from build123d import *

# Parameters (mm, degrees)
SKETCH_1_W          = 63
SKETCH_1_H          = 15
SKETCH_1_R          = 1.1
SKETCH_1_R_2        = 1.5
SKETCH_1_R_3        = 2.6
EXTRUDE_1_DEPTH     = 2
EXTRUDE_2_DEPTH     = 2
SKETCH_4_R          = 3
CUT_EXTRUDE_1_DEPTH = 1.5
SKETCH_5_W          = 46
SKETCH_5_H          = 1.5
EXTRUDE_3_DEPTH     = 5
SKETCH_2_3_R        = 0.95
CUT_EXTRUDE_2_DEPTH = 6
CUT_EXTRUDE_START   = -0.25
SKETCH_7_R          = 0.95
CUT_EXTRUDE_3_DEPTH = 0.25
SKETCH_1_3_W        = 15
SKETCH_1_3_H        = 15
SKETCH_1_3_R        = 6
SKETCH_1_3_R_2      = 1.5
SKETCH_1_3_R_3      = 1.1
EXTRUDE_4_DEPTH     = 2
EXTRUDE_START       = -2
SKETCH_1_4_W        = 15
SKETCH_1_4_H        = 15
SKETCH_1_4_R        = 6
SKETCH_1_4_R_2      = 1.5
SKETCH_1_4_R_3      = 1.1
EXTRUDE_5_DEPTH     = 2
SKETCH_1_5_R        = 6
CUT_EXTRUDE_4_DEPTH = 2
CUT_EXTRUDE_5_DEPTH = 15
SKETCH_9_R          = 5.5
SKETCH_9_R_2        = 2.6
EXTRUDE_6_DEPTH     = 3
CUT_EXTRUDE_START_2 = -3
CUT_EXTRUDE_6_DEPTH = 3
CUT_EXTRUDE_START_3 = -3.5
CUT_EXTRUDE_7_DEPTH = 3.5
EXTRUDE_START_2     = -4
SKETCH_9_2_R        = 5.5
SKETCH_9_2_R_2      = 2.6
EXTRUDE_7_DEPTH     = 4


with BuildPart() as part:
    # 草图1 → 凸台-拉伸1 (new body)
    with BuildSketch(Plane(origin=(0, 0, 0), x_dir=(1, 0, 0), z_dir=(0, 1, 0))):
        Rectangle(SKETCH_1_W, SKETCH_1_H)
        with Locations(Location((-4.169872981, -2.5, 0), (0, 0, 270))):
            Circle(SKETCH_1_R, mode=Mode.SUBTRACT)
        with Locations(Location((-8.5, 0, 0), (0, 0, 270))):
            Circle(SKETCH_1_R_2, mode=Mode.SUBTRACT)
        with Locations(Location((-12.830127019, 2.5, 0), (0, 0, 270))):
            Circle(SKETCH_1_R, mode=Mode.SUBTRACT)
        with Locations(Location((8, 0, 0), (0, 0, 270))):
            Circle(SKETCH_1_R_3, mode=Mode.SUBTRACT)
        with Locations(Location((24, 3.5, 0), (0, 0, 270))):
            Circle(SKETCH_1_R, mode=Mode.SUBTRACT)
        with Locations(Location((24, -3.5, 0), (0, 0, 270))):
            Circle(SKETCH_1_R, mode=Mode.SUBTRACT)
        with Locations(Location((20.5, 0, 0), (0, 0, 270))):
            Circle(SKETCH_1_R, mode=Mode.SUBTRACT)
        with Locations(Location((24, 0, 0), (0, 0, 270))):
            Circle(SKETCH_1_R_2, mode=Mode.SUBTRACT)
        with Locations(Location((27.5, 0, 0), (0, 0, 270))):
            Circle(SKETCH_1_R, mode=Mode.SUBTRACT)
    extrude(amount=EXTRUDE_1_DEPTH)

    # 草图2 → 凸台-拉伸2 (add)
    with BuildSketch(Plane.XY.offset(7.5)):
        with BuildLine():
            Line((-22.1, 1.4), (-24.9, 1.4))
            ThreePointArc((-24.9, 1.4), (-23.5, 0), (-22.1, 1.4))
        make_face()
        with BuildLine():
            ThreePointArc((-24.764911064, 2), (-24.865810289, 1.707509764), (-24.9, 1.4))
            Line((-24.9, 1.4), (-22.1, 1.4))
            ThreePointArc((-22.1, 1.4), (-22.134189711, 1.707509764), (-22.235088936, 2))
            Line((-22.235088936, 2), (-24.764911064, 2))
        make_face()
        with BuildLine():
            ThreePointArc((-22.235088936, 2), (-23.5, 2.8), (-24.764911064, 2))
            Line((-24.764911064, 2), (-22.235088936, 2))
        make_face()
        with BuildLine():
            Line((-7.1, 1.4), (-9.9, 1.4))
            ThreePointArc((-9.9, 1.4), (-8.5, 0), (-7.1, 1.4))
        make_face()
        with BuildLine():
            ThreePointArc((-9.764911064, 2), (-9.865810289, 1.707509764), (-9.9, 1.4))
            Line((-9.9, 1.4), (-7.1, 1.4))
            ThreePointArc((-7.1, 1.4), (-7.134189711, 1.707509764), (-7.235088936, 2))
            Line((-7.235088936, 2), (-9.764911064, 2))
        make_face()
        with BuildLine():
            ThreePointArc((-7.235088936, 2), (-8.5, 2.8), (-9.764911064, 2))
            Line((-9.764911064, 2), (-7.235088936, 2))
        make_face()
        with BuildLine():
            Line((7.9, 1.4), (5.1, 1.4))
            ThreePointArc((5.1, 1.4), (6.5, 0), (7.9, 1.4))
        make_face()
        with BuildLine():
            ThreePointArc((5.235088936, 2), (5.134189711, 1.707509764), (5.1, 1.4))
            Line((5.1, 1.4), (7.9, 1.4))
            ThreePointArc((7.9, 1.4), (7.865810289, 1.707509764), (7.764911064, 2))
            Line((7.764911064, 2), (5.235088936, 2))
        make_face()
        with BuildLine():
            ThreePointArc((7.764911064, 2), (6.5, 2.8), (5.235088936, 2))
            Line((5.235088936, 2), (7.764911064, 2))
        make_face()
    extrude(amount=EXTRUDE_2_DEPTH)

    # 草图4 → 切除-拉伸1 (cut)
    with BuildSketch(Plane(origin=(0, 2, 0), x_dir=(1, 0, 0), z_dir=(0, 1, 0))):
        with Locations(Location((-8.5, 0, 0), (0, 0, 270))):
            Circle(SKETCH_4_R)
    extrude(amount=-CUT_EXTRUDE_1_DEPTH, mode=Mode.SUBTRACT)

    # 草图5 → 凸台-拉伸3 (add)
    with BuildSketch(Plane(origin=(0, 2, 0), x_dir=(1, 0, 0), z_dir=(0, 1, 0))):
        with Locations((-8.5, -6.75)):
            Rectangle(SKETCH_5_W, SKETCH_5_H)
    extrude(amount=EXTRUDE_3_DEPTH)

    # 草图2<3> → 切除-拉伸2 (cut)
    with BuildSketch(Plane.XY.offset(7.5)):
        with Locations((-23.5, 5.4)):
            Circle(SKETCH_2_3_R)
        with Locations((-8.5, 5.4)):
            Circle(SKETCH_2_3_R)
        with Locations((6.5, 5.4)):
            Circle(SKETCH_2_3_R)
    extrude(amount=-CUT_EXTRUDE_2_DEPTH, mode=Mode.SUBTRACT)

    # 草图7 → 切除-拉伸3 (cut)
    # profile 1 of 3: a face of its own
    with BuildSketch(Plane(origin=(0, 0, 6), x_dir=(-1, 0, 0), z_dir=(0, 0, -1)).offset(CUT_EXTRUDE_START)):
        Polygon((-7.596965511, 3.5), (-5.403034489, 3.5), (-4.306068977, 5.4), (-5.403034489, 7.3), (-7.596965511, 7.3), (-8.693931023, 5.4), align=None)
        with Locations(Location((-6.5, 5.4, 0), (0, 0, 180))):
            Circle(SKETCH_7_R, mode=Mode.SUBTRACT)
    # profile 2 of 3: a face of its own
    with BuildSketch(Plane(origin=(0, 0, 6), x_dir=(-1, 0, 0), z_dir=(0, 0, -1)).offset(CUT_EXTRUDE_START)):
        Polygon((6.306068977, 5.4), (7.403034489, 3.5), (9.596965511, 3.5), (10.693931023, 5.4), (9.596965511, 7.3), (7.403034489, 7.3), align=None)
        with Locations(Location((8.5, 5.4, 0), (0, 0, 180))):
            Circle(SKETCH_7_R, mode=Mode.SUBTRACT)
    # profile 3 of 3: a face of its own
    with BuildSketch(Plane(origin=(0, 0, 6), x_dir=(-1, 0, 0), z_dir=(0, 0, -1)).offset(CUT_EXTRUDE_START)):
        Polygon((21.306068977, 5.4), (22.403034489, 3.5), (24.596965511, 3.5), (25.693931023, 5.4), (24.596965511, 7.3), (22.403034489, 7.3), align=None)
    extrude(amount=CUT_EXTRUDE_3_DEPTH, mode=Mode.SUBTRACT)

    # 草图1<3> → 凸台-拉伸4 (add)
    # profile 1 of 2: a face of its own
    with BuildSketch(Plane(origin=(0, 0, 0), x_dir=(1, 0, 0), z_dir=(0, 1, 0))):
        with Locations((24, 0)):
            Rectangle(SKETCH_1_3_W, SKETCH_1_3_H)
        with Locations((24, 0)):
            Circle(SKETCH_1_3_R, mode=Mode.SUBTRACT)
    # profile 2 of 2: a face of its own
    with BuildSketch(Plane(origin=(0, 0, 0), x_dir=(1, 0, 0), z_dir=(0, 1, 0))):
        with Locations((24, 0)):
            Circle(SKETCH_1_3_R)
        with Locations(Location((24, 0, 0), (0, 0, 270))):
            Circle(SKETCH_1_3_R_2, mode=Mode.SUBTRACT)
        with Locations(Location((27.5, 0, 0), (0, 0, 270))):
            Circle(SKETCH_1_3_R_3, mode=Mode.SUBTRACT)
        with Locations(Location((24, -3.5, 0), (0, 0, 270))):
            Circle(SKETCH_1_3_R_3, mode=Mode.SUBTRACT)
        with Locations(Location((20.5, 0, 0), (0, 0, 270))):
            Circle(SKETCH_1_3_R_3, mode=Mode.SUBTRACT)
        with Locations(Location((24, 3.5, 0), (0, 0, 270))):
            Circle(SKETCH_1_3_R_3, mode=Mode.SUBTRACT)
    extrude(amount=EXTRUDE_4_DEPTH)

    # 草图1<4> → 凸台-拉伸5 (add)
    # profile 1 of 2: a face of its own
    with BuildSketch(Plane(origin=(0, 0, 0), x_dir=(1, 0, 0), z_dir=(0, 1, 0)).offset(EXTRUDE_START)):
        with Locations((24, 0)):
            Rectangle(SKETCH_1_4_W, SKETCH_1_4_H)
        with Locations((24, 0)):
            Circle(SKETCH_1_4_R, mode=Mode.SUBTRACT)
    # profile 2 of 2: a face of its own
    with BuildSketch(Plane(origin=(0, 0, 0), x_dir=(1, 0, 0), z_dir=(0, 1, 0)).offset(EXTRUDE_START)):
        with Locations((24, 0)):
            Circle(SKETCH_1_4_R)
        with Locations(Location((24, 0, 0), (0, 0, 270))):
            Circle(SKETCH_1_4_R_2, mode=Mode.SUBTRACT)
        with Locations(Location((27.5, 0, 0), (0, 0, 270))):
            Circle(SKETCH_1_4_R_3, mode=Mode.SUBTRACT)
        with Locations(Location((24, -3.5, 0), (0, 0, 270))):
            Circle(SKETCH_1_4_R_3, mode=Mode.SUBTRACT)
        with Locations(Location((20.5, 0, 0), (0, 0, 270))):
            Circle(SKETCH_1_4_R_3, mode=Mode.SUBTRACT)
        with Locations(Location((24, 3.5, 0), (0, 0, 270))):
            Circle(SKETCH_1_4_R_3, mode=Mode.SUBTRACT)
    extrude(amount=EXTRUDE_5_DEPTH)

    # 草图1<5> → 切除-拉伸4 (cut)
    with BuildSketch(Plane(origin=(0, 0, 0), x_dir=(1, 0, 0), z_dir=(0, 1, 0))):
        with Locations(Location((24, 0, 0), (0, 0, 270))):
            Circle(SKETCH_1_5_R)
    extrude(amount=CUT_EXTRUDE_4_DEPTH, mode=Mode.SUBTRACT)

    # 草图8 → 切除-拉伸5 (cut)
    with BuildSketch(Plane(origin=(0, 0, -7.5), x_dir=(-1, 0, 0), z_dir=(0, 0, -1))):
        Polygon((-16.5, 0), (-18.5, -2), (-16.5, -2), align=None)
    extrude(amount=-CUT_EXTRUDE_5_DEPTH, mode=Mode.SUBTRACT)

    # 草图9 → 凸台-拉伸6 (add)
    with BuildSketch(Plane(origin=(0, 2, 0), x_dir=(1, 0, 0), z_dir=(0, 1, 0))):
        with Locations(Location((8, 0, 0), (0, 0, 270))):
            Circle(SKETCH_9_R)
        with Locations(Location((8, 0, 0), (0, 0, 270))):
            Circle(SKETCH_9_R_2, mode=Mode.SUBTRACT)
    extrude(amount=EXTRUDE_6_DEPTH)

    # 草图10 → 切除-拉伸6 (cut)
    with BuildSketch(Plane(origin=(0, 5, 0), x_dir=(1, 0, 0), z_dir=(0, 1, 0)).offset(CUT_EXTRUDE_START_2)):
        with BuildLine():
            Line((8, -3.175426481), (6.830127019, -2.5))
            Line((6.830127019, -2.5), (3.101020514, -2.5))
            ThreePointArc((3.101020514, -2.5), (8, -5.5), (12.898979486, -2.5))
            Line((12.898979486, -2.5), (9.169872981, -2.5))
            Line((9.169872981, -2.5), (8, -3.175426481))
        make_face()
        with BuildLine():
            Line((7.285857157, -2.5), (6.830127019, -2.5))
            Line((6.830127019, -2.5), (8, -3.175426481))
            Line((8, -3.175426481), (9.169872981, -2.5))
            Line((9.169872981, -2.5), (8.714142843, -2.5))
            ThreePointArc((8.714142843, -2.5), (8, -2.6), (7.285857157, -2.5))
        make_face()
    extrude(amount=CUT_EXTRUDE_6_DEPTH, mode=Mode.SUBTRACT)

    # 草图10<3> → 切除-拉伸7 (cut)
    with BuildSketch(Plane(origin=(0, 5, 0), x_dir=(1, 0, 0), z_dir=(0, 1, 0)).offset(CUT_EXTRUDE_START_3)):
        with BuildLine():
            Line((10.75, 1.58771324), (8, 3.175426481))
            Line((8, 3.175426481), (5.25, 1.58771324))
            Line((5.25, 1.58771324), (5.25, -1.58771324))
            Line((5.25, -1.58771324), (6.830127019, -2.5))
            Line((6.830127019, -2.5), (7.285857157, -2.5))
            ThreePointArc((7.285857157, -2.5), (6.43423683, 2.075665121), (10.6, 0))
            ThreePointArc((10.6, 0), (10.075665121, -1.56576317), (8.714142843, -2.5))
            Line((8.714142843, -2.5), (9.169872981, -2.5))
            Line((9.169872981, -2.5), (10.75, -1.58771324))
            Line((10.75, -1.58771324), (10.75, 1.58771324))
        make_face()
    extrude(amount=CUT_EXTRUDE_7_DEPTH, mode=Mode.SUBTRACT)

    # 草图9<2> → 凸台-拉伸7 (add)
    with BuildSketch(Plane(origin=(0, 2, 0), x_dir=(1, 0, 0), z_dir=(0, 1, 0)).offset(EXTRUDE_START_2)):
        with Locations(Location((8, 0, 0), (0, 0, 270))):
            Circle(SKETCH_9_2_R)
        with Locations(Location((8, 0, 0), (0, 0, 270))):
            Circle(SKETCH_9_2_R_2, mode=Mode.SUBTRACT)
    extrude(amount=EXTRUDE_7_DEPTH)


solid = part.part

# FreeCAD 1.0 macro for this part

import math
import FreeCAD as App
import Part
import Sketcher

V = App.Vector
Q = App.Units.Quantity

doc = App.newDocument("Part")
body = doc.addObject("PartDesign::Body", "Body")

sketch1 = body.newObject("Sketcher::SketchObject", "Sketch")
sketch1.AttachmentSupport = (doc.getObject("XZ_Plane"), [""])
sketch1.MapMode = "FlatFace"
sketch1.addGeometry(Part.LineSegment(V(-31.5, -7.5, 0), V(-31.5, 7.5, 0)), False)
sketch1.addGeometry(Part.LineSegment(V(-31.5, 7.5, 0), V(31.5, 7.5, 0)), False)
sketch1.addGeometry(Part.LineSegment(V(31.5, 7.5, 0), V(31.5, -7.5, 0)), False)
sketch1.addGeometry(Part.LineSegment(V(31.5, -7.5, 0), V(-31.5, -7.5, 0)), False)
sketch1.addGeometry(Part.Circle(V(-4.2, 2.5, 0), V(0, 0, 1), 1.1), False)
sketch1.addGeometry(Part.Circle(V(24, 3.5, 0), V(0, 0, 1), 1.1), False)
sketch1.addGeometry(Part.Circle(V(-8.5, 0, 0), V(0, 0, 1), 1.5), False)
sketch1.addGeometry(Part.Circle(V(-12.8, -2.5, 0), V(0, 0, 1), 1.1), False)
sketch1.addGeometry(Part.Circle(V(8, 0, 0), V(0, 0, 1), 2.6), False)
sketch1.addGeometry(Part.Circle(V(20.5, 0, 0), V(0, 0, 1), 1.1), False)
sketch1.addGeometry(Part.Circle(V(24, 0, 0), V(0, 0, 1), 1.5), False)
sketch1.addGeometry(Part.Circle(V(27.5, 0, 0), V(0, 0, 1), 1.1), False)
sketch1.addGeometry(Part.Circle(V(24, -3.5, 0), V(0, 0, 1), 1.1), False)
sketch1.addConstraint(Sketcher.Constraint("Coincident", 0, 2, 1, 1))
sketch1.addConstraint(Sketcher.Constraint("Coincident", 1, 2, 2, 1))
sketch1.addConstraint(Sketcher.Constraint("Coincident", 2, 2, 3, 1))
sketch1.addConstraint(Sketcher.Constraint("Coincident", 3, 2, 0, 1))
sketch1.addConstraint(Sketcher.Constraint("Vertical", 0))
sketch1.addConstraint(Sketcher.Constraint("Horizontal", 1))
sketch1.addConstraint(Sketcher.Constraint("Vertical", 2))
sketch1.addConstraint(Sketcher.Constraint("Horizontal", 3))
sketch1.addConstraint(Sketcher.Constraint("Equal", 4, 5))
sketch1.addConstraint(Sketcher.Constraint("Equal", 5, 7))
sketch1.addConstraint(Sketcher.Constraint("Equal", 7, 9))
sketch1.addConstraint(Sketcher.Constraint("Equal", 6, 10))
sketch1.addConstraint(Sketcher.Constraint("Equal", 9, 11))
sketch1.addConstraint(Sketcher.Constraint("Equal", 11, 12))
sketch1.addConstraint(Sketcher.Constraint("Symmetric", 0, 2, 2, 2, -1, 1))
sketch1.addConstraint(Sketcher.Constraint("Symmetric", 5, 3, 12, 3, -1))
sketch1.addConstraint(Sketcher.Constraint("PointOnObject", 6, 3, -1))
sketch1.addConstraint(Sketcher.Constraint("PointOnObject", 8, 3, -1))
sketch1.addConstraint(Sketcher.Constraint("PointOnObject", 9, 3, -1))
sketch1.addConstraint(Sketcher.Constraint("PointOnObject", 10, 3, -1))
sketch1.addConstraint(Sketcher.Constraint("PointOnObject", 11, 3, -1))
sketch1.addConstraint(Sketcher.Constraint("Vertical", 5, 3, 10, 3))
sketch1.addConstraint(Sketcher.Constraint("Diameter", 6, 3.0))
sketch1.addConstraint(Sketcher.Constraint("Diameter", 4, 2.2))
sketch1.addConstraint(Sketcher.Constraint("Diameter", 8, 5.2))
sketch1.addConstraint(Sketcher.Constraint("DistanceX", 1, 1, 1, 2, 63.0))
sketch1.addConstraint(Sketcher.Constraint("DistanceY", 0, 1, 0, 2, 15.0))
sketch1.addConstraint(Sketcher.Constraint("DistanceX", -1, 1, 5, 3, 24.0))
sketch1.addConstraint(Sketcher.Constraint("DistanceX", -1, 1, 8, 3, 8.0))
sketch1.addConstraint(Sketcher.Constraint("DistanceY", 4, 3, 5, 3, 1.0))
sketch1.addConstraint(Sketcher.Constraint("DistanceY", 7, 3, 4, 3, 5.0))
sketch1.addConstraint(Sketcher.Constraint("DistanceX", 6, 3, 9, 3, 29.0))
sketch1.addConstraint(Sketcher.Constraint("DistanceX", 9, 3, 11, 3, 7.0))
sketch1.addConstraint(Sketcher.Constraint("DistanceY", 12, 3, 5, 3, 7.0))
sketch1.addConstraint(Sketcher.Constraint("DistanceX", 0, 2, 6, 3, 23.0))
sketch1.addConstraint(Sketcher.Constraint("DistanceX", 4, 3, -1, 1, 4.169873))
sketch1.addConstraint(Sketcher.Constraint("DistanceX", 7, 3, -1, 1, 12.830127))
pad1 = body.newObject("PartDesign::Pad", "Pad")
pad1.Profile = sketch1
pad1.Length = 2
pad1.Reversed = True

sketch2 = body.newObject("Sketcher::SketchObject", "Sketch001")
sketch2.AttachmentSupport = (doc.getObject("XY_Plane"), [""])
sketch2.MapMode = "FlatFace"
sketch2.AttachmentOffset = App.Placement(V(0, 0, 7.5), App.Rotation())
sketch2.addGeometry(Part.ArcOfCircle(Part.Circle(V(-23.5, 1.4, 0), V(0, 0, 1), 1.4), math.radians(180), math.radians(360)), False)
sketch2.addGeometry(Part.ArcOfCircle(Part.Circle(V(-23.5, 1.4, 0), V(0, 0, 1), 1.4), math.radians(0), math.radians(25)), False)
sketch2.addGeometry(Part.ArcOfCircle(Part.Circle(V(-23.5, 1.4, 0), V(0, 0, 1), 1.4), math.radians(25), math.radians(155)), False)
sketch2.addGeometry(Part.ArcOfCircle(Part.Circle(V(-23.5, 1.4, 0), V(0, 0, 1), 1.4), math.radians(155), math.radians(180)), False)
sketch2.addGeometry(Part.ArcOfCircle(Part.Circle(V(-8.5, 1.4, 0), V(0, 0, 1), 1.4), math.radians(180), math.radians(360)), False)
sketch2.addGeometry(Part.ArcOfCircle(Part.Circle(V(-8.5, 1.4, 0), V(0, 0, 1), 1.4), math.radians(0), math.radians(25)), False)
sketch2.addGeometry(Part.ArcOfCircle(Part.Circle(V(-8.5, 1.4, 0), V(0, 0, 1), 1.4), math.radians(25), math.radians(155)), False)
sketch2.addGeometry(Part.ArcOfCircle(Part.Circle(V(-8.5, 1.4, 0), V(0, 0, 1), 1.4), math.radians(155), math.radians(180)), False)
sketch2.addGeometry(Part.ArcOfCircle(Part.Circle(V(6.5, 1.4, 0), V(0, 0, 1), 1.4), math.radians(180), math.radians(360)), False)
sketch2.addGeometry(Part.ArcOfCircle(Part.Circle(V(6.5, 1.4, 0), V(0, 0, 1), 1.4), math.radians(0), math.radians(25)), False)
sketch2.addGeometry(Part.ArcOfCircle(Part.Circle(V(6.5, 1.4, 0), V(0, 0, 1), 1.4), math.radians(25), math.radians(155)), False)
sketch2.addGeometry(Part.ArcOfCircle(Part.Circle(V(6.5, 1.4, 0), V(0, 0, 1), 1.4), math.radians(155), math.radians(180)), False)
sketch2.addConstraint(Sketcher.Constraint("Tangent", 0, 2, 1, 1))
sketch2.addConstraint(Sketcher.Constraint("Tangent", 1, 2, 2, 1))
sketch2.addConstraint(Sketcher.Constraint("Tangent", 2, 2, 3, 1))
sketch2.addConstraint(Sketcher.Constraint("Tangent", 3, 2, 0, 1))
sketch2.addConstraint(Sketcher.Constraint("Tangent", 4, 2, 5, 1))
sketch2.addConstraint(Sketcher.Constraint("Tangent", 5, 2, 6, 1))
sketch2.addConstraint(Sketcher.Constraint("Tangent", 6, 2, 7, 1))
sketch2.addConstraint(Sketcher.Constraint("Tangent", 7, 2, 4, 1))
sketch2.addConstraint(Sketcher.Constraint("Tangent", 8, 2, 9, 1))
sketch2.addConstraint(Sketcher.Constraint("Tangent", 9, 2, 10, 1))
sketch2.addConstraint(Sketcher.Constraint("Tangent", 10, 2, 11, 1))
sketch2.addConstraint(Sketcher.Constraint("Tangent", 11, 2, 8, 1))
sketch2.addConstraint(Sketcher.Constraint("Equal", 0, 1))
sketch2.addConstraint(Sketcher.Constraint("Equal", 3, 4))
sketch2.addConstraint(Sketcher.Constraint("Equal", 4, 5))
sketch2.addConstraint(Sketcher.Constraint("Equal", 7, 8))
sketch2.addConstraint(Sketcher.Constraint("Equal", 8, 9))
sketch2.addConstraint(Sketcher.Constraint("Horizontal", 3, 3, 4, 3))
sketch2.addConstraint(Sketcher.Constraint("Horizontal", 7, 3, 8, 3))
sketch2.addConstraint(Sketcher.Constraint("Horizontal", 11, 3, 0, 2))
sketch2.addConstraint(Sketcher.Constraint("Horizontal", 1, 2, 2, 2))
sketch2.addConstraint(Sketcher.Constraint("Horizontal", 0, 2, 3, 2))
sketch2.addConstraint(Sketcher.Constraint("Horizontal", 3, 2, 4, 2))
sketch2.addConstraint(Sketcher.Constraint("Horizontal", 2, 2, 5, 2))
sketch2.addConstraint(Sketcher.Constraint("Horizontal", 5, 2, 6, 2))
sketch2.addConstraint(Sketcher.Constraint("Horizontal", 4, 2, 7, 2))
sketch2.addConstraint(Sketcher.Constraint("Horizontal", 7, 2, 8, 2))
sketch2.addConstraint(Sketcher.Constraint("Horizontal", 6, 2, 9, 2))
sketch2.addConstraint(Sketcher.Constraint("Horizontal", 9, 2, 10, 2))
sketch2.addConstraint(Sketcher.Constraint("Horizontal", 8, 2, 11, 2))
sketch2.addConstraint(Sketcher.Constraint("Radius", 0, 1.4))
sketch2.addConstraint(Sketcher.Constraint("DistanceY", -1, 1, 1, 2, 2.0))
sketch2.addConstraint(Sketcher.Constraint("DistanceX", 1, 3, 4, 3, 15.0))
sketch2.addConstraint(Sketcher.Constraint("DistanceX", 5, 3, 8, 3, 15.0))
sketch2.addConstraint(Sketcher.Constraint("DistanceX", 0, 3, -1, 1, 23.5))
sketch2.addConstraint(Sketcher.Constraint("DistanceY", -1, 1, 0, 3, 1.4))
pad2 = body.newObject("PartDesign::Pad", "Pad001")
pad2.Profile = sketch2
pad2.Length = 2

sketch3 = body.newObject("Sketcher::SketchObject", "Sketch002")
sketch3.AttachmentSupport = (doc.getObject("XZ_Plane"), [""])
sketch3.MapMode = "FlatFace"
sketch3.AttachmentOffset = App.Placement(V(0, 0, -2), App.Rotation())
sketch3.addGeometry(Part.Circle(V(-8.5, 0, 0), V(0, 0, 1), 3), False)
sketch3.addConstraint(Sketcher.Constraint("PointOnObject", 0, 3, -1))
sketch3.addConstraint(Sketcher.Constraint("Diameter", 0, 6.0))
sketch3.addConstraint(Sketcher.Constraint("DistanceX", 0, 3, -1, 1, 8.5))
pocket1 = body.newObject("PartDesign::Pocket", "Pocket")
pocket1.Profile = sketch3
pocket1.Length = 1.5
pocket1.Reversed = True

sketch4 = body.newObject("Sketcher::SketchObject", "Sketch003")
sketch4.AttachmentSupport = (doc.getObject("XZ_Plane"), [""])
sketch4.MapMode = "FlatFace"
sketch4.AttachmentOffset = App.Placement(V(0, 0, -2), App.Rotation())
sketch4.addGeometry(Part.LineSegment(V(-31.5, 6, 0), V(-31.5, 7.5, 0)), False)
sketch4.addGeometry(Part.LineSegment(V(-31.5, 7.5, 0), V(14.5, 7.5, 0)), False)
sketch4.addGeometry(Part.LineSegment(V(14.5, 7.5, 0), V(14.5, 6, 0)), False)
sketch4.addGeometry(Part.LineSegment(V(14.5, 6, 0), V(-31.5, 6, 0)), False)
sketch4.addConstraint(Sketcher.Constraint("Coincident", 0, 2, 1, 1))
sketch4.addConstraint(Sketcher.Constraint("Coincident", 1, 2, 2, 1))
sketch4.addConstraint(Sketcher.Constraint("Coincident", 2, 2, 3, 1))
sketch4.addConstraint(Sketcher.Constraint("Coincident", 3, 2, 0, 1))
sketch4.addConstraint(Sketcher.Constraint("Vertical", 0))
sketch4.addConstraint(Sketcher.Constraint("Horizontal", 1))
sketch4.addConstraint(Sketcher.Constraint("Vertical", 2))
sketch4.addConstraint(Sketcher.Constraint("Horizontal", 3))
sketch4.addConstraint(Sketcher.Constraint("DistanceX", 1, 1, 1, 2, 46.0))
sketch4.addConstraint(Sketcher.Constraint("DistanceY", 0, 1, 0, 2, 1.5))
sketch4.addConstraint(Sketcher.Constraint("DistanceY", -1, 1, 2, 2, 6.0))
sketch4.addConstraint(Sketcher.Constraint("DistanceX", 0, 2, -1, 1, 31.5))
pad3 = body.newObject("PartDesign::Pad", "Pad002")
pad3.Profile = sketch4
pad3.Length = 5
pad3.Reversed = True

sketch5 = body.newObject("Sketcher::SketchObject", "Sketch004")
sketch5.AttachmentSupport = (doc.getObject("XY_Plane"), [""])
sketch5.MapMode = "FlatFace"
sketch5.AttachmentOffset = App.Placement(V(0, 0, 7.5), App.Rotation())
sketch5.addGeometry(Part.Circle(V(-23.5, 5.4, 0), V(0, 0, 1), 0.9), False)
sketch5.addGeometry(Part.Circle(V(-8.5, 5.4, 0), V(0, 0, 1), 0.9), False)
sketch5.addGeometry(Part.Circle(V(6.5, 5.4, 0), V(0, 0, 1), 0.9), False)
sketch5.addConstraint(Sketcher.Constraint("Equal", 0, 1))
sketch5.addConstraint(Sketcher.Constraint("Equal", 1, 2))
sketch5.addConstraint(Sketcher.Constraint("Horizontal", 0, 3, 1, 3))
sketch5.addConstraint(Sketcher.Constraint("Horizontal", 1, 3, 2, 3))
sketch5.addConstraint(Sketcher.Constraint("Diameter", 0, 1.9))
sketch5.addConstraint(Sketcher.Constraint("DistanceX", 0, 3, 1, 3, 15.0))
sketch5.addConstraint(Sketcher.Constraint("DistanceX", 1, 3, 2, 3, 15.0))
sketch5.addConstraint(Sketcher.Constraint("DistanceX", 0, 3, -1, 1, 23.5))
sketch5.addConstraint(Sketcher.Constraint("DistanceY", -1, 1, 0, 3, 5.4))
pocket2 = body.newObject("PartDesign::Pocket", "Pocket001")
pocket2.Profile = sketch5
pocket2.Length = 6

sketch6 = body.newObject("Sketcher::SketchObject", "Sketch005")
sketch6.AttachmentSupport = (doc.getObject("XY_Plane"), [""])
sketch6.MapMode = "FlatFace"
sketch6.AttachmentOffset = App.Placement(V(0, 0, 6.25), App.Rotation())
sketch6.addGeometry(Part.LineSegment(V(7.6, 3.5, 0), V(5.4, 3.5, 0)), False)
sketch6.addGeometry(Part.LineSegment(V(5.4, 3.5, 0), V(4.3, 5.4, 0)), False)
sketch6.addGeometry(Part.LineSegment(V(4.3, 5.4, 0), V(5.4, 7.3, 0)), False)
sketch6.addGeometry(Part.LineSegment(V(5.4, 7.3, 0), V(7.6, 7.3, 0)), False)
sketch6.addGeometry(Part.LineSegment(V(7.6, 7.3, 0), V(8.7, 5.4, 0)), False)
sketch6.addGeometry(Part.LineSegment(V(8.7, 5.4, 0), V(7.6, 3.5, 0)), False)
sketch6.addGeometry(Part.Circle(V(6.5, 5.4, 0), V(0, 0, 1), 0.9), False)
sketch6.addGeometry(Part.LineSegment(V(-6.3, 5.4, 0), V(-7.4, 3.5, 0)), False)
sketch6.addGeometry(Part.LineSegment(V(-7.4, 3.5, 0), V(-9.6, 3.5, 0)), False)
sketch6.addGeometry(Part.LineSegment(V(-9.6, 3.5, 0), V(-10.7, 5.4, 0)), False)
sketch6.addGeometry(Part.LineSegment(V(-10.7, 5.4, 0), V(-9.6, 7.3, 0)), False)
sketch6.addGeometry(Part.LineSegment(V(-9.6, 7.3, 0), V(-7.4, 7.3, 0)), False)
sketch6.addGeometry(Part.LineSegment(V(-7.4, 7.3, 0), V(-6.3, 5.4, 0)), False)
sketch6.addGeometry(Part.Circle(V(-8.5, 5.4, 0), V(0, 0, 1), 0.9), False)
sketch6.addGeometry(Part.LineSegment(V(-21.3, 5.4, 0), V(-22.4, 3.5, 0)), False)
sketch6.addGeometry(Part.LineSegment(V(-22.4, 3.5, 0), V(-24.6, 3.5, 0)), False)
sketch6.addGeometry(Part.LineSegment(V(-24.6, 3.5, 0), V(-25.7, 5.4, 0)), False)
sketch6.addGeometry(Part.LineSegment(V(-25.7, 5.4, 0), V(-24.6, 7.3, 0)), False)
sketch6.addGeometry(Part.LineSegment(V(-24.6, 7.3, 0), V(-22.4, 7.3, 0)), False)
sketch6.addGeometry(Part.LineSegment(V(-22.4, 7.3, 0), V(-21.3, 5.4, 0)), False)
sketch6.addConstraint(Sketcher.Constraint("Coincident", 0, 2, 1, 1))
sketch6.addConstraint(Sketcher.Constraint("Coincident", 1, 2, 2, 1))
sketch6.addConstraint(Sketcher.Constraint("Coincident", 2, 2, 3, 1))
sketch6.addConstraint(Sketcher.Constraint("Coincident", 3, 2, 4, 1))
sketch6.addConstraint(Sketcher.Constraint("Coincident", 4, 2, 5, 1))
sketch6.addConstraint(Sketcher.Constraint("Coincident", 5, 2, 0, 1))
sketch6.addConstraint(Sketcher.Constraint("Coincident", 7, 2, 8, 1))
sketch6.addConstraint(Sketcher.Constraint("Coincident", 8, 2, 9, 1))
sketch6.addConstraint(Sketcher.Constraint("Coincident", 9, 2, 10, 1))
sketch6.addConstraint(Sketcher.Constraint("Coincident", 10, 2, 11, 1))
sketch6.addConstraint(Sketcher.Constraint("Coincident", 11, 2, 12, 1))
sketch6.addConstraint(Sketcher.Constraint("Coincident", 12, 2, 7, 1))
sketch6.addConstraint(Sketcher.Constraint("Coincident", 14, 2, 15, 1))
sketch6.addConstraint(Sketcher.Constraint("Coincident", 15, 2, 16, 1))
sketch6.addConstraint(Sketcher.Constraint("Coincident", 16, 2, 17, 1))
sketch6.addConstraint(Sketcher.Constraint("Coincident", 17, 2, 18, 1))
sketch6.addConstraint(Sketcher.Constraint("Coincident", 18, 2, 19, 1))
sketch6.addConstraint(Sketcher.Constraint("Coincident", 19, 2, 14, 1))
sketch6.addConstraint(Sketcher.Constraint("Horizontal", 0))
sketch6.addConstraint(Sketcher.Constraint("Horizontal", 3))
sketch6.addConstraint(Sketcher.Constraint("Horizontal", 8))
sketch6.addConstraint(Sketcher.Constraint("Horizontal", 11))
sketch6.addConstraint(Sketcher.Constraint("Horizontal", 15))
sketch6.addConstraint(Sketcher.Constraint("Horizontal", 18))
sketch6.addConstraint(Sketcher.Constraint("Equal", 6, 13))
sketch6.addConstraint(Sketcher.Constraint("Parallel", 1, 4))
sketch6.addConstraint(Sketcher.Constraint("Parallel", 2, 5))
sketch6.addConstraint(Sketcher.Constraint("Parallel", 5, 7))
sketch6.addConstraint(Sketcher.Constraint("Parallel", 4, 9))
sketch6.addConstraint(Sketcher.Constraint("Parallel", 7, 10))
sketch6.addConstraint(Sketcher.Constraint("Parallel", 9, 12))
sketch6.addConstraint(Sketcher.Constraint("Parallel", 10, 14))
sketch6.addConstraint(Sketcher.Constraint("Parallel", 12, 16))
sketch6.addConstraint(Sketcher.Constraint("Parallel", 14, 17))
sketch6.addConstraint(Sketcher.Constraint("Parallel", 16, 19))
sketch6.addConstraint(Sketcher.Constraint("Horizontal", 6, 3, 13, 3))
sketch6.addConstraint(Sketcher.Constraint("Horizontal", 13, 3, 1, 2))
sketch6.addConstraint(Sketcher.Constraint("Horizontal", 1, 2, 4, 2))
sketch6.addConstraint(Sketcher.Constraint("Horizontal", 5, 2, 7, 2))
sketch6.addConstraint(Sketcher.Constraint("Horizontal", 4, 2, 9, 2))
sketch6.addConstraint(Sketcher.Constraint("Horizontal", 3, 2, 10, 2))
sketch6.addConstraint(Sketcher.Constraint("Horizontal", 9, 2, 12, 2))
sketch6.addConstraint(Sketcher.Constraint("Horizontal", 8, 2, 14, 2))
sketch6.addConstraint(Sketcher.Constraint("Horizontal", 12, 2, 16, 2))
sketch6.addConstraint(Sketcher.Constraint("Horizontal", 11, 2, 17, 2))
sketch6.addConstraint(Sketcher.Constraint("Horizontal", 16, 2, 19, 2))
sketch6.addConstraint(Sketcher.Constraint("Vertical", 0, 2, 2, 2))
sketch6.addConstraint(Sketcher.Constraint("Vertical", 3, 2, 5, 2))
sketch6.addConstraint(Sketcher.Constraint("Equal", 3, 8))
sketch6.addConstraint(Sketcher.Constraint("Equal", 11, 15))
sketch6.addConstraint(Sketcher.Constraint("Diameter", 6, 1.9))
sketch6.addConstraint(Sketcher.Constraint("Angle", 1, Q("120 deg")))
sketch6.addConstraint(Sketcher.Constraint("DistanceX", 13, 3, 6, 3, 15.0))
sketch6.addConstraint(Sketcher.Constraint("DistanceX", 8, 2, 0, 2, 15.0))
sketch6.addConstraint(Sketcher.Constraint("DistanceX", 14, 2, 7, 2, 15.0))
sketch6.addConstraint(Sketcher.Constraint("DistanceX", -1, 1, 6, 3, 6.5))
sketch6.addConstraint(Sketcher.Constraint("DistanceY", -1, 1, 6, 3, 5.4))
sketch6.addConstraint(Sketcher.Constraint("DistanceY", -1, 1, 0, 2, 3.5))
sketch6.addConstraint(Sketcher.Constraint("DistanceX", 0, 2, 0, 1, 2.193931))
sketch6.addConstraint(Sketcher.Constraint("DistanceX", -1, 1, 1, 2, 4.306069))
pocket3 = body.newObject("PartDesign::Pocket", "Pocket002")
pocket3.Profile = sketch6
pocket3.Length = 0.25

sketch7 = body.newObject("Sketcher::SketchObject", "Sketch006")
sketch7.AttachmentSupport = (doc.getObject("XZ_Plane"), [""])
sketch7.MapMode = "FlatFace"
sketch7.addGeometry(Part.LineSegment(V(16.5, -7.5, 0), V(16.5, 7.5, 0)), False)
sketch7.addGeometry(Part.LineSegment(V(16.5, 7.5, 0), V(31.5, 7.5, 0)), False)
sketch7.addGeometry(Part.LineSegment(V(31.5, 7.5, 0), V(31.5, -7.5, 0)), False)
sketch7.addGeometry(Part.LineSegment(V(31.5, -7.5, 0), V(16.5, -7.5, 0)), False)
sketch7.addGeometry(Part.Circle(V(24, -3.5, 0), V(0, 0, 1), 1.1), False)
sketch7.addGeometry(Part.Circle(V(24, 3.5, 0), V(0, 0, 1), 1.1), False)
sketch7.addGeometry(Part.Circle(V(20.5, 0, 0), V(0, 0, 1), 1.1), False)
sketch7.addGeometry(Part.Circle(V(24, 0, 0), V(0, 0, 1), 1.5), False)
sketch7.addGeometry(Part.Circle(V(27.5, 0, 0), V(0, 0, 1), 1.1), False)
sketch7.addConstraint(Sketcher.Constraint("Coincident", 0, 2, 1, 1))
sketch7.addConstraint(Sketcher.Constraint("Coincident", 1, 2, 2, 1))
sketch7.addConstraint(Sketcher.Constraint("Coincident", 2, 2, 3, 1))
sketch7.addConstraint(Sketcher.Constraint("Coincident", 3, 2, 0, 1))
sketch7.addConstraint(Sketcher.Constraint("Vertical", 0))
sketch7.addConstraint(Sketcher.Constraint("Horizontal", 1))
sketch7.addConstraint(Sketcher.Constraint("Vertical", 2))
sketch7.addConstraint(Sketcher.Constraint("Horizontal", 3))
sketch7.addConstraint(Sketcher.Constraint("Equal", 4, 5))
sketch7.addConstraint(Sketcher.Constraint("Equal", 5, 6))
sketch7.addConstraint(Sketcher.Constraint("Equal", 6, 8))
sketch7.addConstraint(Sketcher.Constraint("Symmetric", 4, 3, 5, 3, -1))
sketch7.addConstraint(Sketcher.Constraint("PointOnObject", 6, 3, -1))
sketch7.addConstraint(Sketcher.Constraint("PointOnObject", 7, 3, -1))
sketch7.addConstraint(Sketcher.Constraint("PointOnObject", 8, 3, -1))
sketch7.addConstraint(Sketcher.Constraint("Vertical", 5, 3, 7, 3))
sketch7.addConstraint(Sketcher.Constraint("Equal", 3, 0))
sketch7.addConstraint(Sketcher.Constraint("Diameter", 7, 3.0))
sketch7.addConstraint(Sketcher.Constraint("Diameter", 4, 2.2))
sketch7.addConstraint(Sketcher.Constraint("DistanceX", 1, 1, 1, 2, 15.0))
sketch7.addConstraint(Sketcher.Constraint("DistanceX", -1, 1, 4, 3, 24.0))
sketch7.addConstraint(Sketcher.Constraint("DistanceY", 4, 3, 5, 3, 7.0))
sketch7.addConstraint(Sketcher.Constraint("DistanceX", 6, 3, 8, 3, 7.0))
sketch7.addConstraint(Sketcher.Constraint("DistanceY", 5, 3, 0, 2, 4.0))
sketch7.addConstraint(Sketcher.Constraint("DistanceX", 0, 2, 6, 3, 4.0))
sketch7.addConstraint(Sketcher.Constraint("DistanceX", -1, 1, 6, 3, 20.5))
pad4 = body.newObject("PartDesign::Pad", "Pad003")
pad4.Profile = sketch7
pad4.Length = 2
pad4.Reversed = True

sketch8 = body.newObject("Sketcher::SketchObject", "Sketch007")
sketch8.AttachmentSupport = (doc.getObject("XZ_Plane"), [""])
sketch8.MapMode = "FlatFace"
sketch8.AttachmentOffset = App.Placement(V(0, 0, 2), App.Rotation())
sketch8.addGeometry(Part.LineSegment(V(16.5, -7.5, 0), V(16.5, 7.5, 0)), False)
sketch8.addGeometry(Part.LineSegment(V(16.5, 7.5, 0), V(31.5, 7.5, 0)), False)
sketch8.addGeometry(Part.LineSegment(V(31.5, 7.5, 0), V(31.5, -7.5, 0)), False)
sketch8.addGeometry(Part.LineSegment(V(31.5, -7.5, 0), V(16.5, -7.5, 0)), False)
sketch8.addGeometry(Part.Circle(V(24, -3.5, 0), V(0, 0, 1), 1.1), False)
sketch8.addGeometry(Part.Circle(V(24, 3.5, 0), V(0, 0, 1), 1.1), False)
sketch8.addGeometry(Part.Circle(V(20.5, 0, 0), V(0, 0, 1), 1.1), False)
sketch8.addGeometry(Part.Circle(V(24, 0, 0), V(0, 0, 1), 1.5), False)
sketch8.addGeometry(Part.Circle(V(27.5, 0, 0), V(0, 0, 1), 1.1), False)
sketch8.addConstraint(Sketcher.Constraint("Coincident", 0, 2, 1, 1))
sketch8.addConstraint(Sketcher.Constraint("Coincident", 1, 2, 2, 1))
sketch8.addConstraint(Sketcher.Constraint("Coincident", 2, 2, 3, 1))
sketch8.addConstraint(Sketcher.Constraint("Coincident", 3, 2, 0, 1))
sketch8.addConstraint(Sketcher.Constraint("Vertical", 0))
sketch8.addConstraint(Sketcher.Constraint("Horizontal", 1))
sketch8.addConstraint(Sketcher.Constraint("Vertical", 2))
sketch8.addConstraint(Sketcher.Constraint("Horizontal", 3))
sketch8.addConstraint(Sketcher.Constraint("Equal", 4, 5))
sketch8.addConstraint(Sketcher.Constraint("Equal", 5, 6))
sketch8.addConstraint(Sketcher.Constraint("Equal", 6, 8))
sketch8.addConstraint(Sketcher.Constraint("Symmetric", 4, 3, 5, 3, -1))
sketch8.addConstraint(Sketcher.Constraint("PointOnObject", 6, 3, -1))
sketch8.addConstraint(Sketcher.Constraint("PointOnObject", 7, 3, -1))
sketch8.addConstraint(Sketcher.Constraint("PointOnObject", 8, 3, -1))
sketch8.addConstraint(Sketcher.Constraint("Vertical", 5, 3, 7, 3))
sketch8.addConstraint(Sketcher.Constraint("Equal", 3, 0))
sketch8.addConstraint(Sketcher.Constraint("Diameter", 7, 3.0))
sketch8.addConstraint(Sketcher.Constraint("Diameter", 4, 2.2))
sketch8.addConstraint(Sketcher.Constraint("DistanceX", 1, 1, 1, 2, 15.0))
sketch8.addConstraint(Sketcher.Constraint("DistanceX", -1, 1, 4, 3, 24.0))
sketch8.addConstraint(Sketcher.Constraint("DistanceY", 4, 3, 5, 3, 7.0))
sketch8.addConstraint(Sketcher.Constraint("DistanceX", 6, 3, 8, 3, 7.0))
sketch8.addConstraint(Sketcher.Constraint("DistanceY", 5, 3, 0, 2, 4.0))
sketch8.addConstraint(Sketcher.Constraint("DistanceX", 0, 2, 6, 3, 4.0))
sketch8.addConstraint(Sketcher.Constraint("DistanceX", -1, 1, 6, 3, 20.5))
pad5 = body.newObject("PartDesign::Pad", "Pad004")
pad5.Profile = sketch8
pad5.Length = 2
pad5.Reversed = True

sketch9 = body.newObject("Sketcher::SketchObject", "Sketch008")
sketch9.AttachmentSupport = (doc.getObject("XZ_Plane"), [""])
sketch9.MapMode = "FlatFace"
sketch9.addGeometry(Part.Circle(V(24, 0, 0), V(0, 0, 1), 6), False)
sketch9.addConstraint(Sketcher.Constraint("PointOnObject", 0, 3, -1))
sketch9.addConstraint(Sketcher.Constraint("Diameter", 0, 12.0))
sketch9.addConstraint(Sketcher.Constraint("DistanceX", -1, 1, 0, 3, 24.0))
pocket4 = body.newObject("PartDesign::Pocket", "Pocket003")
pocket4.Profile = sketch9
pocket4.Length = 2

sketch10 = body.newObject("Sketcher::SketchObject", "Sketch009")
sketch10.AttachmentSupport = (doc.getObject("XY_Plane"), [""])
sketch10.MapMode = "FlatFace"
sketch10.AttachmentOffset = App.Placement(V(0, 0, -7.5), App.Rotation())
sketch10.addGeometry(Part.LineSegment(V(16.5, 0, 0), V(18.5, -2, 0)), False)
sketch10.addGeometry(Part.LineSegment(V(18.5, -2, 0), V(16.5, -2, 0)), False)
sketch10.addGeometry(Part.LineSegment(V(16.5, -2, 0), V(16.5, 0, 0)), False)
sketch10.addConstraint(Sketcher.Constraint("Coincident", 0, 2, 1, 1))
sketch10.addConstraint(Sketcher.Constraint("Coincident", 1, 2, 2, 1))
sketch10.addConstraint(Sketcher.Constraint("Coincident", 2, 2, 0, 1))
sketch10.addConstraint(Sketcher.Constraint("Horizontal", 1))
sketch10.addConstraint(Sketcher.Constraint("Vertical", 2))
sketch10.addConstraint(Sketcher.Constraint("PointOnObject", 2, 2, -1))
sketch10.addConstraint(Sketcher.Constraint("Equal", 1, 2))
sketch10.addConstraint(Sketcher.Constraint("DistanceX", 1, 2, 1, 1, 2.0))
sketch10.addConstraint(Sketcher.Constraint("DistanceX", -1, 1, 0, 2, 18.5))
pocket5 = body.newObject("PartDesign::Pocket", "Pocket004")
pocket5.Profile = sketch10
pocket5.Length = 15
pocket5.Reversed = True

sketch11 = body.newObject("Sketcher::SketchObject", "Sketch010")
sketch11.AttachmentSupport = (doc.getObject("XZ_Plane"), [""])
sketch11.MapMode = "FlatFace"
sketch11.AttachmentOffset = App.Placement(V(0, 0, -2), App.Rotation())
sketch11.addGeometry(Part.Circle(V(8, 0, 0), V(0, 0, 1), 5.5), False)
sketch11.addGeometry(Part.Circle(V(8, 0, 0), V(0, 0, 1), 2.6), False)
sketch11.addConstraint(Sketcher.Constraint("Coincident", 1, 3, 0, 3))
sketch11.addConstraint(Sketcher.Constraint("PointOnObject", 0, 3, -1))
sketch11.addConstraint(Sketcher.Constraint("Diameter", 0, 11.0))
sketch11.addConstraint(Sketcher.Constraint("Diameter", 1, 5.2))
sketch11.addConstraint(Sketcher.Constraint("DistanceX", -1, 1, 0, 3, 8.0))
pad6 = body.newObject("PartDesign::Pad", "Pad005")
pad6.Profile = sketch11
pad6.Length = 3
pad6.Reversed = True

sketch12 = body.newObject("Sketcher::SketchObject", "Sketch011")
sketch12.AttachmentSupport = (doc.getObject("XZ_Plane"), [""])
sketch12.MapMode = "FlatFace"
sketch12.AttachmentOffset = App.Placement(V(0, 0, -2), App.Rotation())
sketch12.addGeometry(Part.ArcOfCircle(Part.Circle(V(8, 0, 0), V(0, 0, 1), 5.5), math.radians(27), math.radians(153)), False)
sketch12.addGeometry(Part.LineSegment(V(12.9, 2.5, 0), V(8.7, 2.5, 0)), False)
sketch12.addGeometry(Part.ArcOfCircle(Part.Circle(V(8, 0, 0), V(0, 0, 1), 2.6), math.radians(74), math.radians(106)), False)
sketch12.addGeometry(Part.LineSegment(V(7.3, 2.5, 0), V(3.1, 2.5, 0)), False)
sketch12.addConstraint(Sketcher.Constraint("Coincident", 0, 1, 1, 1))
sketch12.addConstraint(Sketcher.Constraint("Coincident", 1, 2, 2, 1))
sketch12.addConstraint(Sketcher.Constraint("Coincident", 2, 2, 3, 1))
sketch12.addConstraint(Sketcher.Constraint("Coincident", 3, 2, 0, 2))
sketch12.addConstraint(Sketcher.Constraint("Horizontal", 1))
sketch12.addConstraint(Sketcher.Constraint("Horizontal", 3))
sketch12.addConstraint(Sketcher.Constraint("Coincident", 2, 3, 0, 3))
sketch12.addConstraint(Sketcher.Constraint("PointOnObject", 0, 3, -1))
sketch12.addConstraint(Sketcher.Constraint("Horizontal", 1, 2, 2, 2))
sketch12.addConstraint(Sketcher.Constraint("Radius", 0, 5.5))
sketch12.addConstraint(Sketcher.Constraint("Radius", 2, 2.6))
sketch12.addConstraint(Sketcher.Constraint("DistanceX", -1, 1, 0, 3, 8.0))
sketch12.addConstraint(Sketcher.Constraint("DistanceY", -1, 1, 0, 1, 2.5))
pocket6 = body.newObject("PartDesign::Pocket", "Pocket005")
pocket6.Profile = sketch12
pocket6.Length = 3

sketch13 = body.newObject("Sketcher::SketchObject", "Sketch012")
sketch13.AttachmentSupport = (doc.getObject("XZ_Plane"), [""])
sketch13.MapMode = "FlatFace"
sketch13.AttachmentOffset = App.Placement(V(0, 0, -1.5), App.Rotation())
sketch13.addGeometry(Part.LineSegment(V(10.75, -1.59, 0), V(8, -3.18, 0)), False)
sketch13.addGeometry(Part.LineSegment(V(8, -3.18, 0), V(5.25, -1.59, 0)), False)
sketch13.addGeometry(Part.LineSegment(V(5.25, -1.59, 0), V(5.25, 1.59, 0)), False)
sketch13.addGeometry(Part.LineSegment(V(5.25, 1.59, 0), V(6.83, 2.5, 0)), False)
sketch13.addGeometry(Part.LineSegment(V(6.83, 2.5, 0), V(7.29, 2.5, 0)), False)
sketch13.addGeometry(Part.ArcOfCircle(Part.Circle(V(8, 0, 0), V(0, 0, 1), 2.6), math.radians(106), math.radians(360)), False)
sketch13.addGeometry(Part.ArcOfCircle(Part.Circle(V(8, 0, 0), V(0, 0, 1), 2.6), math.radians(0), math.radians(74)), False)
sketch13.addGeometry(Part.LineSegment(V(8.71, 2.5, 0), V(9.17, 2.5, 0)), False)
sketch13.addGeometry(Part.LineSegment(V(9.17, 2.5, 0), V(10.75, 1.59, 0)), False)
sketch13.addGeometry(Part.LineSegment(V(10.75, 1.59, 0), V(10.75, -1.59, 0)), False)
sketch13.addConstraint(Sketcher.Constraint("Coincident", 0, 2, 1, 1))
sketch13.addConstraint(Sketcher.Constraint("Coincident", 1, 2, 2, 1))
sketch13.addConstraint(Sketcher.Constraint("Coincident", 2, 2, 3, 1))
sketch13.addConstraint(Sketcher.Constraint("Coincident", 3, 2, 4, 1))
sketch13.addConstraint(Sketcher.Constraint("Coincident", 4, 2, 5, 1))
sketch13.addConstraint(Sketcher.Constraint("Tangent", 5, 2, 6, 1))
sketch13.addConstraint(Sketcher.Constraint("Coincident", 6, 2, 7, 1))
sketch13.addConstraint(Sketcher.Constraint("Coincident", 7, 2, 8, 1))
sketch13.addConstraint(Sketcher.Constraint("Coincident", 8, 2, 9, 1))
sketch13.addConstraint(Sketcher.Constraint("Coincident", 9, 2, 0, 1))
sketch13.addConstraint(Sketcher.Constraint("Vertical", 2))
sketch13.addConstraint(Sketcher.Constraint("Horizontal", 4))
sketch13.addConstraint(Sketcher.Constraint("Horizontal", 7))
sketch13.addConstraint(Sketcher.Constraint("Vertical", 9))
sketch13.addConstraint(Sketcher.Constraint("Equal", 5, 6))
sketch13.addConstraint(Sketcher.Constraint("PointOnObject", 5, 3, -1))
sketch13.addConstraint(Sketcher.Constraint("PointOnObject", 5, 2, -1))
sketch13.addConstraint(Sketcher.Constraint("Parallel", 0, 3))
sketch13.addConstraint(Sketcher.Constraint("Parallel", 1, 8))
sketch13.addConstraint(Sketcher.Constraint("Horizontal", 4, 2, 6, 2))
sketch13.addConstraint(Sketcher.Constraint("Horizontal", 2, 2, 8, 2))
sketch13.addConstraint(Sketcher.Constraint("Horizontal", 1, 2, 9, 2))
sketch13.addConstraint(Sketcher.Constraint("Vertical", 6, 3, 0, 2))
sketch13.addConstraint(Sketcher.Constraint("Equal", 4, 7))
sketch13.addConstraint(Sketcher.Constraint("Radius", 5, 2.6))
sketch13.addConstraint(Sketcher.Constraint("Angle", 0, Q("-150 deg")))
sketch13.addConstraint(Sketcher.Constraint("DistanceX", -1, 1, 5, 3, 8.0))
sketch13.addConstraint(Sketcher.Constraint("DistanceY", -1, 1, 3, 2, 2.5))
sketch13.addConstraint(Sketcher.Constraint("DistanceX", -1, 1, 1, 2, 5.25))
sketch13.addConstraint(Sketcher.Constraint("DistanceX", 4, 1, 4, 2, 0.45573))
sketch13.addConstraint(Sketcher.Constraint("DistanceY", 2, 1, 2, 2, 3.175426))
pocket7 = body.newObject("PartDesign::Pocket", "Pocket006")
pocket7.Profile = sketch13
pocket7.Length = 3.5

sketch14 = body.newObject("Sketcher::SketchObject", "Sketch013")
sketch14.AttachmentSupport = (doc.getObject("XZ_Plane"), [""])
sketch14.MapMode = "FlatFace"
sketch14.AttachmentOffset = App.Placement(V(0, 0, 2), App.Rotation())
sketch14.addGeometry(Part.Circle(V(8, 0, 0), V(0, 0, 1), 5.5), False)
sketch14.addGeometry(Part.Circle(V(8, 0, 0), V(0, 0, 1), 2.6), False)
sketch14.addConstraint(Sketcher.Constraint("Coincident", 1, 3, 0, 3))
sketch14.addConstraint(Sketcher.Constraint("PointOnObject", 0, 3, -1))
sketch14.addConstraint(Sketcher.Constraint("Diameter", 0, 11.0))
sketch14.addConstraint(Sketcher.Constraint("Diameter", 1, 5.2))
sketch14.addConstraint(Sketcher.Constraint("DistanceX", -1, 1, 0, 3, 8.0))
pad7 = body.newObject("PartDesign::Pad", "Pad006")
pad7.Profile = sketch14
pad7.Length = 4
pad7.Reversed = True

doc.recompute()
